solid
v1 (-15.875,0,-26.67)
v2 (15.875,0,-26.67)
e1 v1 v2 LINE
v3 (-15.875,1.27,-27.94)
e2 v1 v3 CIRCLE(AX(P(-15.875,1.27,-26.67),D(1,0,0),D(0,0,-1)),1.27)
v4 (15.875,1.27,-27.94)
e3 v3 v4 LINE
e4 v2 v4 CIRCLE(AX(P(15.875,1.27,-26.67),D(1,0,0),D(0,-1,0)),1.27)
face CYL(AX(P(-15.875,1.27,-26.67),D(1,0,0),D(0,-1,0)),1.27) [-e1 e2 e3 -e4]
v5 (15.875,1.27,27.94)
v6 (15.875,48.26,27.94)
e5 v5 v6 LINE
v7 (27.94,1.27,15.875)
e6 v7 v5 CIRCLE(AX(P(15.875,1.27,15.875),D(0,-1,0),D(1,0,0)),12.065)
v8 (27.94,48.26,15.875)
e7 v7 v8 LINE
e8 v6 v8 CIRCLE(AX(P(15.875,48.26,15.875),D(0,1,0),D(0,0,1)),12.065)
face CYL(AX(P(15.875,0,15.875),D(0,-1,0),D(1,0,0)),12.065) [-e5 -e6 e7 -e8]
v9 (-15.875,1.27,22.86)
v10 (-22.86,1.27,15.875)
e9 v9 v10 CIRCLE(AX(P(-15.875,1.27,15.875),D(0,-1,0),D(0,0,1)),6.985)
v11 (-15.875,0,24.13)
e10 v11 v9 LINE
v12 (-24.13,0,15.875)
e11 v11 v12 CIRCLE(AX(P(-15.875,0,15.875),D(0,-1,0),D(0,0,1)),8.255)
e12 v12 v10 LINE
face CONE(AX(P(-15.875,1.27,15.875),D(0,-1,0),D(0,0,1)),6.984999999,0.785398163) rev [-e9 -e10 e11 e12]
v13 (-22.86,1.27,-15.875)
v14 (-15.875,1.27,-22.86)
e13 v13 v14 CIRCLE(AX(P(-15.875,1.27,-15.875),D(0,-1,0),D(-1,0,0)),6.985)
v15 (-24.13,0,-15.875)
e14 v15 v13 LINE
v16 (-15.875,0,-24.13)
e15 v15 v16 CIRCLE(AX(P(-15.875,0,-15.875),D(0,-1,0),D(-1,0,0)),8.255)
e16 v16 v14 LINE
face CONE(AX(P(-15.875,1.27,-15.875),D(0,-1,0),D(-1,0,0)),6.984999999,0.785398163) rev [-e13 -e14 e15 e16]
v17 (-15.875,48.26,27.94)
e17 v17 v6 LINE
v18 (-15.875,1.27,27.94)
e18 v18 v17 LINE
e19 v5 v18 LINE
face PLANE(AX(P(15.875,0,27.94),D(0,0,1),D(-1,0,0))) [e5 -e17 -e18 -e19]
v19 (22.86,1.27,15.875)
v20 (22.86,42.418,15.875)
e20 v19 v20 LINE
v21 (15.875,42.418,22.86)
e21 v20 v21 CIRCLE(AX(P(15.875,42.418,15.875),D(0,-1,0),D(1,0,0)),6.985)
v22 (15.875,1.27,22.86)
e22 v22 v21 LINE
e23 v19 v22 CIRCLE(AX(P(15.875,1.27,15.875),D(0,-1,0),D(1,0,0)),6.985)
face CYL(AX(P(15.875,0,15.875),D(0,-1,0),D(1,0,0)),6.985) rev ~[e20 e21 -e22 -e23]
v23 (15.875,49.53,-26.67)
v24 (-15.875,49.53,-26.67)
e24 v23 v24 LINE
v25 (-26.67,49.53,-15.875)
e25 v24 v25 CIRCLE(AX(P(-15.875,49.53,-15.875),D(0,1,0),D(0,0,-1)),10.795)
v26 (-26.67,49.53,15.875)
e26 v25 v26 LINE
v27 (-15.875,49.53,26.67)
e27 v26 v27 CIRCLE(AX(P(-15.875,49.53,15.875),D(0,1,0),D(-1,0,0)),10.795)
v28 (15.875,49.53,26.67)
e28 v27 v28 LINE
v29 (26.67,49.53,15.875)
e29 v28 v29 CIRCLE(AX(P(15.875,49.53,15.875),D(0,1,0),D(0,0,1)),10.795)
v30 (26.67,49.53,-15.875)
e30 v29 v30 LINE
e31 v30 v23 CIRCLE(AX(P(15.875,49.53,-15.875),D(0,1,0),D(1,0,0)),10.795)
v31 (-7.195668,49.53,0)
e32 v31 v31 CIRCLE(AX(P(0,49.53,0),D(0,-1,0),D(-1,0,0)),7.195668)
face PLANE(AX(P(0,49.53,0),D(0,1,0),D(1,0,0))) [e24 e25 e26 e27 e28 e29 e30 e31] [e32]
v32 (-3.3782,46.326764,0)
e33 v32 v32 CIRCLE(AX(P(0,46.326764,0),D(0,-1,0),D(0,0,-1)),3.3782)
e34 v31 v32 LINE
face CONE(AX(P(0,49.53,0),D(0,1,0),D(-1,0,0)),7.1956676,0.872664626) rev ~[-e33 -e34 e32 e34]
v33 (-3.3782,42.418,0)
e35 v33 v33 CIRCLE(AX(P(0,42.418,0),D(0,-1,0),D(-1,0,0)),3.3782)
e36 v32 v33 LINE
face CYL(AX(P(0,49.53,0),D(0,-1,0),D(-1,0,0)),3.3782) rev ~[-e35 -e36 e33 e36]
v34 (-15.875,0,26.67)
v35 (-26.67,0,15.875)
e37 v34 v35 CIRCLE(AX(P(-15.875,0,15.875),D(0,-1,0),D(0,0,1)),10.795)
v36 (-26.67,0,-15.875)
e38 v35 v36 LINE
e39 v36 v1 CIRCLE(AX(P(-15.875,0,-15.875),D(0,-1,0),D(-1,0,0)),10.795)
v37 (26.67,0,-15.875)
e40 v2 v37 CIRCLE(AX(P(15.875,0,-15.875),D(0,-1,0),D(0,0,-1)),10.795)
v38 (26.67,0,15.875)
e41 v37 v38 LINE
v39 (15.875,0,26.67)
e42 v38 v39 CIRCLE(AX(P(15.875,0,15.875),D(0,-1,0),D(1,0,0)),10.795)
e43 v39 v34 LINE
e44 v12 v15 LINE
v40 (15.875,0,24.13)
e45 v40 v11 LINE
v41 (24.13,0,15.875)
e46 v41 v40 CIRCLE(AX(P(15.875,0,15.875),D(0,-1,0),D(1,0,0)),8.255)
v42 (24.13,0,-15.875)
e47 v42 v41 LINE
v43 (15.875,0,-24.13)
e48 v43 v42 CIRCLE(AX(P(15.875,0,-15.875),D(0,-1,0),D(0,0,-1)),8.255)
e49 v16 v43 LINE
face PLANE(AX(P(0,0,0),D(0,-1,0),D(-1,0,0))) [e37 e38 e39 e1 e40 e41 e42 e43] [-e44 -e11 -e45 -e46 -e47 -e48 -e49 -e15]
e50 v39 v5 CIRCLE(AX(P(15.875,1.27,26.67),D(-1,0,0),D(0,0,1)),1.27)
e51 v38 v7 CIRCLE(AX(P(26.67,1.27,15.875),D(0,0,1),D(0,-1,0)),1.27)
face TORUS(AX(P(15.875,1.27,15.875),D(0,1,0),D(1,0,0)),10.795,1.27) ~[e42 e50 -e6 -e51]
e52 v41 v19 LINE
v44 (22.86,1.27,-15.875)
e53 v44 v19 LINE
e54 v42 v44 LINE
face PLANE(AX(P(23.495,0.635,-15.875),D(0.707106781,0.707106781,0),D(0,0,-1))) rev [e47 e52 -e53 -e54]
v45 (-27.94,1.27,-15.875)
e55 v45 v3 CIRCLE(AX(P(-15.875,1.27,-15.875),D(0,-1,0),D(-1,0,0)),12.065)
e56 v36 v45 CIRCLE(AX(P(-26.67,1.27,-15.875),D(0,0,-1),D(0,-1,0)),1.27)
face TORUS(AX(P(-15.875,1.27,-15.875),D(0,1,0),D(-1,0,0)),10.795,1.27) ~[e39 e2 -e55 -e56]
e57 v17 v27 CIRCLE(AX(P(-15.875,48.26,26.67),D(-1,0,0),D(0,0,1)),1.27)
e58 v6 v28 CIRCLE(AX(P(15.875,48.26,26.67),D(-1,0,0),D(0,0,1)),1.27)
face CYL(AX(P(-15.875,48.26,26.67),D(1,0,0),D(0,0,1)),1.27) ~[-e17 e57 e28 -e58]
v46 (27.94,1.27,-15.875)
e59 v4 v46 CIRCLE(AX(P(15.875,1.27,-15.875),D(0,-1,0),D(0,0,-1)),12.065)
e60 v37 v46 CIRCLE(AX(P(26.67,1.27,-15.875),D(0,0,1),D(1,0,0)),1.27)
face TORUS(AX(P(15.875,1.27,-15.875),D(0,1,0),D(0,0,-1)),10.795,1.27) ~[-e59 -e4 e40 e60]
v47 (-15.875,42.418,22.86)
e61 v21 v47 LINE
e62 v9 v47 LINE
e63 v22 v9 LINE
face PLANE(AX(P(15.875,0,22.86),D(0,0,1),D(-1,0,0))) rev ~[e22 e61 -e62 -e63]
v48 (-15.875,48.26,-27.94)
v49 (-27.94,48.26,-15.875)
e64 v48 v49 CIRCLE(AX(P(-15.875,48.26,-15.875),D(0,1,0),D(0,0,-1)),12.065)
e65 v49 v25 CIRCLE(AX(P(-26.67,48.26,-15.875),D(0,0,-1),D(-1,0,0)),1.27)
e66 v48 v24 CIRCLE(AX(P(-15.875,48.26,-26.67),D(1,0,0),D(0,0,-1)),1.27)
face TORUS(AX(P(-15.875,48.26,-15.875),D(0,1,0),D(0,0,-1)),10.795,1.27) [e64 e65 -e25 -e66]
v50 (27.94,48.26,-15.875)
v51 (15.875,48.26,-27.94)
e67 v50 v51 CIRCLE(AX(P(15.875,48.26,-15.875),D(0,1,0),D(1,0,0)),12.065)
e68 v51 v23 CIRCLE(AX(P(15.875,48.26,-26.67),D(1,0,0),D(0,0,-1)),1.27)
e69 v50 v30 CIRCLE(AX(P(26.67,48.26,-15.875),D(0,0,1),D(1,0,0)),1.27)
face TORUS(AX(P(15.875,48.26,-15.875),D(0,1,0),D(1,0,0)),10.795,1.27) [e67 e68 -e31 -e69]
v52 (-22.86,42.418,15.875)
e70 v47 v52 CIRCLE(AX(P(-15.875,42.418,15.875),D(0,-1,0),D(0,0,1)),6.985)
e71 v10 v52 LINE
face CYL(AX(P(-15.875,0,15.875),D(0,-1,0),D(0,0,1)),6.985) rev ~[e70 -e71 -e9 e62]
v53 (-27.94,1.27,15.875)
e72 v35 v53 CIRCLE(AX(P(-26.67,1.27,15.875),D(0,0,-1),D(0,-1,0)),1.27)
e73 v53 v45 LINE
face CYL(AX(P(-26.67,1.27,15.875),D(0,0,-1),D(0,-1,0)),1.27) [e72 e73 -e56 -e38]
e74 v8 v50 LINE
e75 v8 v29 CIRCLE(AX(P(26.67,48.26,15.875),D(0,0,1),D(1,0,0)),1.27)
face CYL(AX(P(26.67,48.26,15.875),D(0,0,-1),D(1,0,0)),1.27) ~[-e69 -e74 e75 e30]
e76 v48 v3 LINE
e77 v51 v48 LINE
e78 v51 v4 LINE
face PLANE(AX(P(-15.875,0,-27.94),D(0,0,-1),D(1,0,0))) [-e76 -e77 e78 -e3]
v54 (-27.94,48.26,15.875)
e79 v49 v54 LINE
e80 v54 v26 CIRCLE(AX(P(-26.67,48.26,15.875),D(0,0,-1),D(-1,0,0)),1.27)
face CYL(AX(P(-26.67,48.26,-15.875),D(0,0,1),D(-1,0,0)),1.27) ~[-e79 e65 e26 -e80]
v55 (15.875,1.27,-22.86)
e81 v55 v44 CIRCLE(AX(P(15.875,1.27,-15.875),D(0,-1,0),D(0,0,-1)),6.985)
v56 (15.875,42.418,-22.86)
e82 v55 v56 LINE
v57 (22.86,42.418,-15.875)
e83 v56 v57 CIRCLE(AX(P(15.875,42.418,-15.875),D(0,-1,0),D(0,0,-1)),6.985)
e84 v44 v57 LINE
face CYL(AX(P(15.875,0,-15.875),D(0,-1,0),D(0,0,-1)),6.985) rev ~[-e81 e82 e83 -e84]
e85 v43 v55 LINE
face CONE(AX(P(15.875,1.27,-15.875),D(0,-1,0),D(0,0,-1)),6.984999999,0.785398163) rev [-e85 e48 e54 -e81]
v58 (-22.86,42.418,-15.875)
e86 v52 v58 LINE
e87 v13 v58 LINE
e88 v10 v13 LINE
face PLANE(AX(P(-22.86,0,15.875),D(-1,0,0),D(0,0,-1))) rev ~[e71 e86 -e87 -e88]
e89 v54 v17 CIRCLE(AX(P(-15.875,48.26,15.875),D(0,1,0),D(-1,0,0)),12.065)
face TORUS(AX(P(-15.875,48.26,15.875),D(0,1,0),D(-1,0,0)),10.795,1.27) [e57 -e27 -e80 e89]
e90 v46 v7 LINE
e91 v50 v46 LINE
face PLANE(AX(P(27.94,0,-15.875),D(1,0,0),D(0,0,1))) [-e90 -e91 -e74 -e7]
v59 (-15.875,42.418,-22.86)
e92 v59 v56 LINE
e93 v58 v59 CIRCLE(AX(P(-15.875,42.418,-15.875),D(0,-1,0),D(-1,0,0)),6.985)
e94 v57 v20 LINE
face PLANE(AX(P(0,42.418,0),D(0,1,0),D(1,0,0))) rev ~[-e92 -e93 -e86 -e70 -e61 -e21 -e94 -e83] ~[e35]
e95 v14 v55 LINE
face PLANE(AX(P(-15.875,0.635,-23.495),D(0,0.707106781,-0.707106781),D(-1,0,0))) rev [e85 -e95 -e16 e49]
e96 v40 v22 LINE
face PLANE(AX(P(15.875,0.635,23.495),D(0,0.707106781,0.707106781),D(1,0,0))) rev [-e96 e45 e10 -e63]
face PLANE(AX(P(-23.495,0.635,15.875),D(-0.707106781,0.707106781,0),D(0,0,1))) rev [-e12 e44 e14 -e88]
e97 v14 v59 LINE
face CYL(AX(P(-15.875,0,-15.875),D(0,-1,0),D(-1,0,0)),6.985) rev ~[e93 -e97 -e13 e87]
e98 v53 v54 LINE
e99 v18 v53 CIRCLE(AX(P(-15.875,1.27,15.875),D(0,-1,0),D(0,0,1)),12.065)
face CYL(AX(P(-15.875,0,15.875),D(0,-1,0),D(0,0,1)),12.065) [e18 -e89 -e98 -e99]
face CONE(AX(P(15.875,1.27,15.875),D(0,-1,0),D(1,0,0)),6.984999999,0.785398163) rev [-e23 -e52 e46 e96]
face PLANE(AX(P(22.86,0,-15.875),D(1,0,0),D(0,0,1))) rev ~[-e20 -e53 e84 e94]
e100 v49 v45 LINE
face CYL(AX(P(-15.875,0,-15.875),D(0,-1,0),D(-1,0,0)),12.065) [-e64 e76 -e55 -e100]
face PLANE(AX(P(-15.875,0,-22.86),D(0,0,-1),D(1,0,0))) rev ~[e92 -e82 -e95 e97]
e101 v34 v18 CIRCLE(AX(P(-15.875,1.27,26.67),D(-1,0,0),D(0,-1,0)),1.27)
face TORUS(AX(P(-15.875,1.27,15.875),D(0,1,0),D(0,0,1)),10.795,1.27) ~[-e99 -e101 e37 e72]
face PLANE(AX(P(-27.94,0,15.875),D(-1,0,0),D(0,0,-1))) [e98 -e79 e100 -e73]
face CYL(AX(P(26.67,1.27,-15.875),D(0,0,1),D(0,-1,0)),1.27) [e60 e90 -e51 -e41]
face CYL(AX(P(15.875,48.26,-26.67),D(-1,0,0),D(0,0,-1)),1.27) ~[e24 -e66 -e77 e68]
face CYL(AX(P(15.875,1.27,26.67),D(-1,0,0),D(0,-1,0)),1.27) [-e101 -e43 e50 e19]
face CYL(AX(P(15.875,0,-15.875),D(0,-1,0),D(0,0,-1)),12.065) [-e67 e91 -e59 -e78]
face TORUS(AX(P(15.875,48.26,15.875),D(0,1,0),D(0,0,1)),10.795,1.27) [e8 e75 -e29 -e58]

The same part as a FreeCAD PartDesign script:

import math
import FreeCAD as App
import Part
import Sketcher
from FreeCAD import Vector
Q = App.Units.Quantity


def edges_at(feature, points):
    """Names of the edges that pass closest to the given points."""
    edges = feature.Shape.Edges
    near = lambda p: min(range(len(edges)), key=lambda i: edges[i].distToShape(Part.Vertex(*p))[0])
    return sorted({f"Edge{near(p) + 1}" for p in points})

doc = App.newDocument("Part")
body = doc.addObject("PartDesign::Body", "Body")

sketch1 = body.newObject("Sketcher::SketchObject", "Sketch")
sketch1.AttachmentSupport = (doc.getObject("XZ_Plane"), [""])
sketch1.MapMode = "FlatFace"
sketch1.AttachmentOffset = App.Placement(Vector(0, 0, -1.7 * 25.4), App.Rotation())
sketch1.addGeometry([
    Part.LineSegment(Vector(-27.94, -15.875, 0), Vector(-27.94, 15.875, 0)),
    Part.ArcOfCircle(Part.Circle(Vector(-15.875, 15.875, 0), Vector(0, 0, 1), 12.065), math.radians(90), math.radians(180)),
    Part.LineSegment(Vector(-15.875, 27.94, 0), Vector(15.875, 27.94, 0)),
    Part.ArcOfCircle(Part.Circle(Vector(15.875, 15.875, 0), Vector(0, 0, 1), 12.065), math.radians(0), math.radians(90)),
    Part.LineSegment(Vector(27.94, 15.875, 0), Vector(27.94, -15.875, 0)),
    Part.ArcOfCircle(Part.Circle(Vector(15.875, -15.875, 0), Vector(0, 0, 1), 12.065), math.radians(-90), math.radians(0)),
    Part.LineSegment(Vector(15.875, -27.94, 0), Vector(-15.875, -27.94, 0)),
    Part.ArcOfCircle(Part.Circle(Vector(-15.875, -15.875, 0), Vector(0, 0, 1), 12.065), math.radians(180), math.radians(270)),
], False)
sketch1.addConstraint([
    Sketcher.Constraint("Tangent", 0, 2, 1, 2),
    Sketcher.Constraint("Tangent", 1, 1, 2, 1),
    Sketcher.Constraint("Tangent", 2, 2, 3, 2),
    Sketcher.Constraint("Tangent", 3, 1, 4, 1),
    Sketcher.Constraint("Tangent", 4, 2, 5, 2),
    Sketcher.Constraint("Tangent", 5, 1, 6, 1),
    Sketcher.Constraint("Tangent", 6, 2, 7, 2),
    Sketcher.Constraint("Tangent", 7, 1, 0, 1),
    Sketcher.Constraint("Vertical", 0),
    Sketcher.Constraint("Horizontal", 2),
    Sketcher.Constraint("Vertical", 4),
    Sketcher.Constraint("Horizontal", 6),
    Sketcher.Constraint("Equal", 1, 3),
    Sketcher.Constraint("Equal", 3, 5),
    Sketcher.Constraint("Equal", 5, 7),
    Sketcher.Constraint("Symmetric", 1, 3, 5, 3, -1, 1),
    Sketcher.Constraint("Equal", 6, 0),
    Sketcher.Constraint("Radius", 1, Q("0.475 in")),
    Sketcher.Constraint("DistanceX", 2, 1, 2, 2, Q("1.25 in")),
])
pad1 = body.newObject("PartDesign::Pad", "Pad")
pad1.Profile = sketch1
pad1.Type = "TwoLengths"
pad1.Length = Q("0.25 in")
pad1.Length2 = Q("0.03 in")
pad1.Reversed = True

sketch2 = body.newObject("Sketcher::SketchObject", "Sketch001")
sketch2.AttachmentSupport = (doc.getObject("XZ_Plane"), [""])
sketch2.MapMode = "FlatFace"
sketch2.addGeometry([
    Part.LineSegment(Vector(-27.94, -15.875, 0), Vector(-27.94, 15.875, 0)),
    Part.ArcOfCircle(Part.Circle(Vector(-15.875, 15.875, 0), Vector(0, 0, 1), 12.065), math.radians(90), math.radians(180)),
    Part.LineSegment(Vector(-15.875, 27.94, 0), Vector(15.875, 27.94, 0)),
    Part.ArcOfCircle(Part.Circle(Vector(15.875, 15.875, 0), Vector(0, 0, 1), 12.065), math.radians(0), math.radians(90)),
    Part.LineSegment(Vector(27.94, 15.875, 0), Vector(27.94, -15.875, 0)),
    Part.ArcOfCircle(Part.Circle(Vector(15.875, -15.875, 0), Vector(0, 0, 1), 12.065), math.radians(-90), math.radians(0)),
    Part.LineSegment(Vector(15.875, -27.94, 0), Vector(-15.875, -27.94, 0)),
    Part.ArcOfCircle(Part.Circle(Vector(-15.875, -15.875, 0), Vector(0, 0, 1), 12.065), math.radians(180), math.radians(270)),
    Part.LineSegment(Vector(-22.86, 15.875, 0), Vector(-22.86, -15.875, 0)),
    Part.ArcOfCircle(Part.Circle(Vector(-15.875, -15.875, 0), Vector(0, 0, 1), 6.985), math.radians(180), math.radians(270)),
    Part.LineSegment(Vector(-15.875, -22.86, 0), Vector(15.875, -22.86, 0)),
    Part.ArcOfCircle(Part.Circle(Vector(15.875, -15.875, 0), Vector(0, 0, 1), 6.985), math.radians(-90), math.radians(0)),
    Part.LineSegment(Vector(22.86, -15.875, 0), Vector(22.86, 15.875, 0)),
    Part.ArcOfCircle(Part.Circle(Vector(15.875, 15.875, 0), Vector(0, 0, 1), 6.985), math.radians(0), math.radians(90)),
    Part.LineSegment(Vector(15.875, 22.86, 0), Vector(-15.875, 22.86, 0)),
    Part.ArcOfCircle(Part.Circle(Vector(-15.875, 15.875, 0), Vector(0, 0, 1), 6.985), math.radians(90), math.radians(180)),
], False)
sketch2.addConstraint([
    Sketcher.Constraint("Tangent", 0, 2, 1, 2),
    Sketcher.Constraint("Tangent", 1, 1, 2, 1),
    Sketcher.Constraint("Tangent", 2, 2, 3, 2),
    Sketcher.Constraint("Tangent", 3, 1, 4, 1),
    Sketcher.Constraint("Tangent", 4, 2, 5, 2),
    Sketcher.Constraint("Tangent", 5, 1, 6, 1),
    Sketcher.Constraint("Tangent", 6, 2, 7, 2),
    Sketcher.Constraint("Tangent", 7, 1, 0, 1),
    Sketcher.Constraint("Tangent", 8, 2, 9, 1),
    Sketcher.Constraint("Tangent", 9, 2, 10, 1),
    Sketcher.Constraint("Tangent", 10, 2, 11, 1),
    Sketcher.Constraint("Tangent", 11, 2, 12, 1),
    Sketcher.Constraint("Tangent", 12, 2, 13, 1),
    Sketcher.Constraint("Tangent", 13, 2, 14, 1),
    Sketcher.Constraint("Tangent", 14, 2, 15, 1),
    Sketcher.Constraint("Tangent", 15, 2, 8, 1),
    Sketcher.Constraint("Vertical", 0),
    Sketcher.Constraint("Horizontal", 2),
    Sketcher.Constraint("Vertical", 4),
    Sketcher.Constraint("Horizontal", 6),
    Sketcher.Constraint("Vertical", 8),
    Sketcher.Constraint("Horizontal", 10),
    Sketcher.Constraint("Vertical", 12),
    Sketcher.Constraint("Horizontal", 14),
    Sketcher.Constraint("Coincident", 9, 3, 7, 3),
    Sketcher.Constraint("Coincident", 11, 3, 5, 3),
    Sketcher.Constraint("Coincident", 13, 3, 3, 3),
    Sketcher.Constraint("Equal", 1, 3),
    Sketcher.Constraint("Equal", 3, 5),
    Sketcher.Constraint("Equal", 5, 7),
    Sketcher.Constraint("Equal", 13, 15),
    Sketcher.Constraint("Symmetric", 1, 3, 5, 3, -1, 1),
    Sketcher.Constraint("Equal", 14, 0),
    Sketcher.Constraint("Radius", 1, Q("0.475 in")),
    Sketcher.Constraint("Radius", 9, Q("0.275 in")),
    Sketcher.Constraint("DistanceX", 2, 1, 2, 2, Q("1.25 in")),
])
pad2 = body.newObject("PartDesign::Pad", "Pad001")
pad2.Profile = sketch2
pad2.Length = Q("1.67 in")
pad2.Reversed = True

sketch3 = body.newObject("Sketcher::SketchObject", "Sketch002")
sketch3.AttachmentSupport = (doc.getObject("XZ_Plane"), [""])
sketch3.MapMode = "FlatFace"
sketch3.AttachmentOffset = App.Placement(Vector(0, 0, -1.95 * 25.4), App.Rotation())
sketch3.addGeometry(Part.Circle(Vector(0, 0, 0), Vector(0, 0, 1), 3.3782), False)
sketch3.addConstraint([
    Sketcher.Constraint("Coincident", 0, 3, -1, 1),
    Sketcher.Constraint("Diameter", 0, Q("0.266 in")),
])
doc.recompute()
hole = body.newObject("PartDesign::Hole", "Hole")
hole.Profile = sketch3
hole.ThreadType = "None"
hole.Diameter = Q("0.266 in")
hole.DepthType = "ThroughAll"
hole.HoleCutType = "Countersink"
hole.HoleCutDiameter = 14.391335
hole.HoleCutCountersinkAngle = 100
hole.Reversed = True
doc.recompute()

fillet = body.newObject("PartDesign::Fillet", "Fillet")
fillet.Base = (hole, edges_at(hole, [
    (24.406, 49.53, 24.406),
    (27.94, 49.53, 0),
    (24.406, 49.53, -24.406),
    (0, 49.53, -27.94),
    (-24.406, 49.53, -24.406),
    (-27.94, 49.53, 0),
    (-24.406, 49.53, 24.406),
    (0, 49.53, 27.94),
]))
fillet.Radius = Q("0.05 in")
doc.recompute()

chamfer = body.newObject("PartDesign::Chamfer", "Chamfer")
chamfer.Base = (fillet, edges_at(fillet, [
    (-22.86, 0, 0),
    (-20.814, 0, 20.814),
    (0, 0, 22.86),
    (20.814, 0, 20.814),
    (22.86, 0, 0),
    (20.814, 0, -20.814),
    (0, 0, -22.86),
    (-20.814, 0, -20.814),
]))
chamfer.Size = Q("0.05 in")
doc.recompute()

fillet2 = body.newObject("PartDesign::Fillet", "Fillet001")
fillet2.Base = (chamfer, edges_at(chamfer, [
    (-27.94, 0, 0),
    (-24.406, 0, -24.406),
    (0, 0, -27.94),
    (24.406, 0, -24.406),
    (27.94, 0, 0),
    (24.406, 0, 24.406),
    (0, 0, 27.94),
    (-24.406, 0, 24.406),
]))
fillet2.Radius = Q("0.05 in")

doc.recompute()
